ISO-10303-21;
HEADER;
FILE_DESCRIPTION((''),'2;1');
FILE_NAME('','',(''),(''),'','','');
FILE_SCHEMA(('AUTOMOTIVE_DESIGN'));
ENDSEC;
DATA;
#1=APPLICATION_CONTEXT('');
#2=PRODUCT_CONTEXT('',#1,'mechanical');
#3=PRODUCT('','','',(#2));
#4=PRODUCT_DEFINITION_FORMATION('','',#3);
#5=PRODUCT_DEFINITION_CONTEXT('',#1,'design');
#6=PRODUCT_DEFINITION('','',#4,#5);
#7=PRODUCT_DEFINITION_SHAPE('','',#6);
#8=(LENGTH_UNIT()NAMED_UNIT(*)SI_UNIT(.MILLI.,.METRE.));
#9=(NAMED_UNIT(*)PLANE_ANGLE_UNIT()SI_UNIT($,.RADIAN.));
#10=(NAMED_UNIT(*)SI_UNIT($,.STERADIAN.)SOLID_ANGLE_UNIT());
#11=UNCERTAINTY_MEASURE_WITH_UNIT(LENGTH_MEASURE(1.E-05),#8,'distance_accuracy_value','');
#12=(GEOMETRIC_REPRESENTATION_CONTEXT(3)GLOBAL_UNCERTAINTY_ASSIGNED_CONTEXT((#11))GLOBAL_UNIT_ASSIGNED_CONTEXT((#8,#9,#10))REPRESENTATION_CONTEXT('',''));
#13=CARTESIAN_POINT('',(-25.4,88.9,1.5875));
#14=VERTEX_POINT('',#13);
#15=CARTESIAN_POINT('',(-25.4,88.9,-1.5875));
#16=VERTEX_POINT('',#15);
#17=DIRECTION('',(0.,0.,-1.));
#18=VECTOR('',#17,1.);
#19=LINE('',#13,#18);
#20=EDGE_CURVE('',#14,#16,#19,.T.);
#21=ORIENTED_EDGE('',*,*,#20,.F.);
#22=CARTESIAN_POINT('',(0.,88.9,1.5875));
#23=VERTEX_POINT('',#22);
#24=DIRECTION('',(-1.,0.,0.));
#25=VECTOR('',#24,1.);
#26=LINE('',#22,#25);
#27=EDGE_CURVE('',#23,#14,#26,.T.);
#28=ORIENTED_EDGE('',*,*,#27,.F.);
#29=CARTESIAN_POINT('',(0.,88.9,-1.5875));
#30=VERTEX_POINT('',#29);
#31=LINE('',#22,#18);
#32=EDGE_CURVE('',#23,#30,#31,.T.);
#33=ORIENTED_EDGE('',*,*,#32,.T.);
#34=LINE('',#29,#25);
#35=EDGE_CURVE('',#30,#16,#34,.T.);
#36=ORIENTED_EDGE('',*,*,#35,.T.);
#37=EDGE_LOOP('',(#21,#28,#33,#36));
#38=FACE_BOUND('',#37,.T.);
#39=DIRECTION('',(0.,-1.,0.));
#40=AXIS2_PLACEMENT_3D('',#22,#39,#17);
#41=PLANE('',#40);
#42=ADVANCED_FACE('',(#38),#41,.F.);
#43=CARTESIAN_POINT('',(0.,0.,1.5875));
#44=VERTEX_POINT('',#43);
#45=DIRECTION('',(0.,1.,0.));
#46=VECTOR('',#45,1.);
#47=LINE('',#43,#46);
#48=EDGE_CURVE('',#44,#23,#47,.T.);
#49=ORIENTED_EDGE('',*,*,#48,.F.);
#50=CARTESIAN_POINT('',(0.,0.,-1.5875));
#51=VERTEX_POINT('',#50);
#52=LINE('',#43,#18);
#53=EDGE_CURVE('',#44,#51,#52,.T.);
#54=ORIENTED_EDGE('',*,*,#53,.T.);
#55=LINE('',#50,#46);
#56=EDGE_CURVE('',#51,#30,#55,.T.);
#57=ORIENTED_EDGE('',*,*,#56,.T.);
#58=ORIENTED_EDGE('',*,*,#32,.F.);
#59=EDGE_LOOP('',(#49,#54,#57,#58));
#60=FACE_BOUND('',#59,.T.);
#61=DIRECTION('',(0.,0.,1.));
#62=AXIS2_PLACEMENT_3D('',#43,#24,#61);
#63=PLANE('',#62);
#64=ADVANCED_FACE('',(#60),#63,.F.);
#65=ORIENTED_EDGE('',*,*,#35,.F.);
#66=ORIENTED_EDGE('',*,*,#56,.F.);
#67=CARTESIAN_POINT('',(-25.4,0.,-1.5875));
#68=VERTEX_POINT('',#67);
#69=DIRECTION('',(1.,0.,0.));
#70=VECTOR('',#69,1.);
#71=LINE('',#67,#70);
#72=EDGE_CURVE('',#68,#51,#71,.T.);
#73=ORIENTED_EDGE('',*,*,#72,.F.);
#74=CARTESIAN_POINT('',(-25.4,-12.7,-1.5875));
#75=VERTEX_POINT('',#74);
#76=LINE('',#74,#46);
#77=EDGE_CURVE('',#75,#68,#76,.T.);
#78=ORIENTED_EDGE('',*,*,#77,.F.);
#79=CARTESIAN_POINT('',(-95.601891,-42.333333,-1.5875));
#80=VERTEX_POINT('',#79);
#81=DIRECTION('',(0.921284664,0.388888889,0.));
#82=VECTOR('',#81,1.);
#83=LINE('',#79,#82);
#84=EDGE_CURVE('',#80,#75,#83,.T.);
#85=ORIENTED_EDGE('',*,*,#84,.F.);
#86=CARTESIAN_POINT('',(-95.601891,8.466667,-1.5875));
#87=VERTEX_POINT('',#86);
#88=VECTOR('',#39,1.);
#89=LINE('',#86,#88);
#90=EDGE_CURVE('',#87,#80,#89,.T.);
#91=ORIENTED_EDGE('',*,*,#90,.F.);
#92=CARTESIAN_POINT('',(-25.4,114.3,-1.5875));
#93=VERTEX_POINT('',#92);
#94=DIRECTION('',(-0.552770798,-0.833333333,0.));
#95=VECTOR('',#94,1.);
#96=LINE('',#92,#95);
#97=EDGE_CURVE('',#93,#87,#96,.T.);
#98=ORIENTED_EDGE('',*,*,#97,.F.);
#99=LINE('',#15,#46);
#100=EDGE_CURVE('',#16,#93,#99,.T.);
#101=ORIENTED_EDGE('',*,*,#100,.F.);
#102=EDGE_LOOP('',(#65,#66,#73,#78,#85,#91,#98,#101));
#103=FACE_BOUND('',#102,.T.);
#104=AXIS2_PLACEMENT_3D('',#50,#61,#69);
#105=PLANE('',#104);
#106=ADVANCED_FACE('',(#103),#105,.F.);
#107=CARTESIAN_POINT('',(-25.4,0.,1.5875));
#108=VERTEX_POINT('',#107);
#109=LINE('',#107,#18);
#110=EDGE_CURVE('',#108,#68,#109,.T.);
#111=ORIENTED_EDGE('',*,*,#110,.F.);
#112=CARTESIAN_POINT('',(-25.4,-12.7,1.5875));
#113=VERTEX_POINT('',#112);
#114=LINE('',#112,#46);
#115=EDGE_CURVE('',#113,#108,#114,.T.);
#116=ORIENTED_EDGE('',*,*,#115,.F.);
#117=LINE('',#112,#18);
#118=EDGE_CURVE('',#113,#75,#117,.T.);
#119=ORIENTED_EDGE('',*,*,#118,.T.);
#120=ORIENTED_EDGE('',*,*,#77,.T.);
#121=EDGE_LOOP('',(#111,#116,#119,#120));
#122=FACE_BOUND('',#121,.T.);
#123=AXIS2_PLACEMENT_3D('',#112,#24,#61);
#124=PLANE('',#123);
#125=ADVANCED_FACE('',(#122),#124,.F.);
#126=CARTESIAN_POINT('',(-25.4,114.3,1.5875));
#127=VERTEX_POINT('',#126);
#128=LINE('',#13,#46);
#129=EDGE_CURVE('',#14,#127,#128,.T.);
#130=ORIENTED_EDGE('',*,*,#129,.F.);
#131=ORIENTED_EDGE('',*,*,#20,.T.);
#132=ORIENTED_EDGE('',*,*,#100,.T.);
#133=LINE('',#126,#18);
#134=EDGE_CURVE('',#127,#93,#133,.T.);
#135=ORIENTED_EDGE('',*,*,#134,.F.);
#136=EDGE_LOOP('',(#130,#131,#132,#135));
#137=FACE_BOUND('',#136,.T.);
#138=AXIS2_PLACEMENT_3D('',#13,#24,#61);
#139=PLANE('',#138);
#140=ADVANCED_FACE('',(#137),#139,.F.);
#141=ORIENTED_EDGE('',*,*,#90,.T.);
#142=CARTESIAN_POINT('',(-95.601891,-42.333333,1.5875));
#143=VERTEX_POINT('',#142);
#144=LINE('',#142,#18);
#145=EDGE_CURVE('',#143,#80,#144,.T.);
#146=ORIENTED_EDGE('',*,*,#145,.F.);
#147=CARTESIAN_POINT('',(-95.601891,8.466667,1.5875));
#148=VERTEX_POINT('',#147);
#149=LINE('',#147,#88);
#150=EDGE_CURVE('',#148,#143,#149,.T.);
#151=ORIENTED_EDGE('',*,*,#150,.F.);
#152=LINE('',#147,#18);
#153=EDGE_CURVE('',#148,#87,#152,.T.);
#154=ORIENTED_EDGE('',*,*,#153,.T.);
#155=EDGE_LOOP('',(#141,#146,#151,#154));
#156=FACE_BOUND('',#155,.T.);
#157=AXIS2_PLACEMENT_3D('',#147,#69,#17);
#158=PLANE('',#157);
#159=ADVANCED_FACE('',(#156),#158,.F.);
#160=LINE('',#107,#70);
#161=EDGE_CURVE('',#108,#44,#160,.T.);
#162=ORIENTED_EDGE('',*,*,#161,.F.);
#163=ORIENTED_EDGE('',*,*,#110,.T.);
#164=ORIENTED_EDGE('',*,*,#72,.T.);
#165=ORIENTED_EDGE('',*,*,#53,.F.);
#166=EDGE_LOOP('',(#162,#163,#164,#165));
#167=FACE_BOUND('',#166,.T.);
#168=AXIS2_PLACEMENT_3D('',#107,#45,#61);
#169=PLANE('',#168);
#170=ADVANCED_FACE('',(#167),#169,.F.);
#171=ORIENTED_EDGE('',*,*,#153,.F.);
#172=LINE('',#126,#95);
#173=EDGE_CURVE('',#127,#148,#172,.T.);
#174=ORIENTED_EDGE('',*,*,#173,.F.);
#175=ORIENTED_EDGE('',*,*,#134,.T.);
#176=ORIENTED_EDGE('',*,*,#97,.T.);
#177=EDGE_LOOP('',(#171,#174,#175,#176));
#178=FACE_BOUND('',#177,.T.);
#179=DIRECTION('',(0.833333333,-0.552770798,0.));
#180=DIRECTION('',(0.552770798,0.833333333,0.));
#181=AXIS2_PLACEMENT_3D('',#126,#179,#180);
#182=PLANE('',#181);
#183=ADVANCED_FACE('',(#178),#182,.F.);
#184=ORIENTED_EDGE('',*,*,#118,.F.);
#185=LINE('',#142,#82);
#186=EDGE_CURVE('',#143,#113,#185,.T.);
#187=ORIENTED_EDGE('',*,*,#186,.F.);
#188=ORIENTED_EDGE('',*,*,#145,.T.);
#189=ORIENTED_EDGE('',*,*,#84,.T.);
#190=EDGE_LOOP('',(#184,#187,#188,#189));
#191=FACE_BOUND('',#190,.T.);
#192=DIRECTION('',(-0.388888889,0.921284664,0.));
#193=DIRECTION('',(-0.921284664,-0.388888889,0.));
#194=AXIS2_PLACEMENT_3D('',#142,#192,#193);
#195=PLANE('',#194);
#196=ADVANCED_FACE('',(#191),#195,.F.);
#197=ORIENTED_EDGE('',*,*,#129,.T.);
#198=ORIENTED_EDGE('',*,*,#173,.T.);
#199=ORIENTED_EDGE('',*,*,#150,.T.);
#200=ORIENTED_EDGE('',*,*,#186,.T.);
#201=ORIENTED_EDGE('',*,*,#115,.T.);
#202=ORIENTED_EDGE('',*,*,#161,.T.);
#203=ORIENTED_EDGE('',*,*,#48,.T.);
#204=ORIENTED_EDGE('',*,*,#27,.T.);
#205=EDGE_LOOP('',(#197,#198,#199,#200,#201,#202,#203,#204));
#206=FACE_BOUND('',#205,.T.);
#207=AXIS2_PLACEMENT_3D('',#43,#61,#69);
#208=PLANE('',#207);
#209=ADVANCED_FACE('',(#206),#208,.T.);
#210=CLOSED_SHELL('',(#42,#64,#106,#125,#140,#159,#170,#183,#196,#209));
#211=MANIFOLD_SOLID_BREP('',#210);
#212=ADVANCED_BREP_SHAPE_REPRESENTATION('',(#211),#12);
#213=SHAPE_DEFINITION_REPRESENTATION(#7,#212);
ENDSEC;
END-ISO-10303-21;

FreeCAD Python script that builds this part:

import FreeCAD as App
import Part
import Sketcher
Q = App.Units.Quantity


def add_polygon(sketch, points):
    """Adds a closed chain of lines whose ends are joined by coincident constraints."""
    first, n = sketch.GeometryCount, len(points)
    for a, b in zip(points, points[1:] + points[:1]):
        sketch.addGeometry(Part.LineSegment(App.Vector(*a, 0), App.Vector(*b, 0)), False)
    for i in range(n):
        sketch.addConstraint(Sketcher.Constraint("Coincident", first + i, 2, first + (i + 1) % n, 1))

doc = App.newDocument("Part")
body = doc.addObject("PartDesign::Body", "Body")

sketch1 = body.newObject("Sketcher::SketchObject", "Sketch")
sketch1.AttachmentSupport = (doc.getObject("XY_Plane"), [""])
sketch1.MapMode = "FlatFace"
add_polygon(sketch1, [(0, 0), (0, 89), (-25, 89), (-25, 114), (-96, 8), (-96, -42), (-25, -13), (-25, 0)])
sketch1.addConstraint([
    Sketcher.Constraint("Vertical", 0),
    Sketcher.Constraint("Horizontal", 1),
    Sketcher.Constraint("Vertical", 2),
    Sketcher.Constraint("Vertical", 4),
    Sketcher.Constraint("Vertical", 6),
    Sketcher.Constraint("Horizontal", 7),
    Sketcher.Constraint("Coincident", 7, 2, -1, 1),
    Sketcher.Constraint("Vertical", 2, 2, 5, 2),
    Sketcher.Constraint("Equal", 7, 2),
    Sketcher.Constraint("DistanceX", 1, 2, 1, 1, Q("1 in")),
    Sketcher.Constraint("DistanceY", 4, 2, 4, 1, Q("2 in")),
    Sketcher.Constraint("Distance", 3, Q("5 in")),
    Sketcher.Constraint("Distance", 5, Q("3 in")),
    Sketcher.Constraint("DistanceY", 0, 1, 0, 2, Q("3.5 in")),
    Sketcher.Constraint("DistanceY", 6, 1, 6, 2, Q("0.5 in")),
])
pad1 = body.newObject("PartDesign::Pad", "Pad")
pad1.Profile = sketch1
pad1.Length = Q("0.125 in")
pad1.Midplane = True

doc.recompute()
